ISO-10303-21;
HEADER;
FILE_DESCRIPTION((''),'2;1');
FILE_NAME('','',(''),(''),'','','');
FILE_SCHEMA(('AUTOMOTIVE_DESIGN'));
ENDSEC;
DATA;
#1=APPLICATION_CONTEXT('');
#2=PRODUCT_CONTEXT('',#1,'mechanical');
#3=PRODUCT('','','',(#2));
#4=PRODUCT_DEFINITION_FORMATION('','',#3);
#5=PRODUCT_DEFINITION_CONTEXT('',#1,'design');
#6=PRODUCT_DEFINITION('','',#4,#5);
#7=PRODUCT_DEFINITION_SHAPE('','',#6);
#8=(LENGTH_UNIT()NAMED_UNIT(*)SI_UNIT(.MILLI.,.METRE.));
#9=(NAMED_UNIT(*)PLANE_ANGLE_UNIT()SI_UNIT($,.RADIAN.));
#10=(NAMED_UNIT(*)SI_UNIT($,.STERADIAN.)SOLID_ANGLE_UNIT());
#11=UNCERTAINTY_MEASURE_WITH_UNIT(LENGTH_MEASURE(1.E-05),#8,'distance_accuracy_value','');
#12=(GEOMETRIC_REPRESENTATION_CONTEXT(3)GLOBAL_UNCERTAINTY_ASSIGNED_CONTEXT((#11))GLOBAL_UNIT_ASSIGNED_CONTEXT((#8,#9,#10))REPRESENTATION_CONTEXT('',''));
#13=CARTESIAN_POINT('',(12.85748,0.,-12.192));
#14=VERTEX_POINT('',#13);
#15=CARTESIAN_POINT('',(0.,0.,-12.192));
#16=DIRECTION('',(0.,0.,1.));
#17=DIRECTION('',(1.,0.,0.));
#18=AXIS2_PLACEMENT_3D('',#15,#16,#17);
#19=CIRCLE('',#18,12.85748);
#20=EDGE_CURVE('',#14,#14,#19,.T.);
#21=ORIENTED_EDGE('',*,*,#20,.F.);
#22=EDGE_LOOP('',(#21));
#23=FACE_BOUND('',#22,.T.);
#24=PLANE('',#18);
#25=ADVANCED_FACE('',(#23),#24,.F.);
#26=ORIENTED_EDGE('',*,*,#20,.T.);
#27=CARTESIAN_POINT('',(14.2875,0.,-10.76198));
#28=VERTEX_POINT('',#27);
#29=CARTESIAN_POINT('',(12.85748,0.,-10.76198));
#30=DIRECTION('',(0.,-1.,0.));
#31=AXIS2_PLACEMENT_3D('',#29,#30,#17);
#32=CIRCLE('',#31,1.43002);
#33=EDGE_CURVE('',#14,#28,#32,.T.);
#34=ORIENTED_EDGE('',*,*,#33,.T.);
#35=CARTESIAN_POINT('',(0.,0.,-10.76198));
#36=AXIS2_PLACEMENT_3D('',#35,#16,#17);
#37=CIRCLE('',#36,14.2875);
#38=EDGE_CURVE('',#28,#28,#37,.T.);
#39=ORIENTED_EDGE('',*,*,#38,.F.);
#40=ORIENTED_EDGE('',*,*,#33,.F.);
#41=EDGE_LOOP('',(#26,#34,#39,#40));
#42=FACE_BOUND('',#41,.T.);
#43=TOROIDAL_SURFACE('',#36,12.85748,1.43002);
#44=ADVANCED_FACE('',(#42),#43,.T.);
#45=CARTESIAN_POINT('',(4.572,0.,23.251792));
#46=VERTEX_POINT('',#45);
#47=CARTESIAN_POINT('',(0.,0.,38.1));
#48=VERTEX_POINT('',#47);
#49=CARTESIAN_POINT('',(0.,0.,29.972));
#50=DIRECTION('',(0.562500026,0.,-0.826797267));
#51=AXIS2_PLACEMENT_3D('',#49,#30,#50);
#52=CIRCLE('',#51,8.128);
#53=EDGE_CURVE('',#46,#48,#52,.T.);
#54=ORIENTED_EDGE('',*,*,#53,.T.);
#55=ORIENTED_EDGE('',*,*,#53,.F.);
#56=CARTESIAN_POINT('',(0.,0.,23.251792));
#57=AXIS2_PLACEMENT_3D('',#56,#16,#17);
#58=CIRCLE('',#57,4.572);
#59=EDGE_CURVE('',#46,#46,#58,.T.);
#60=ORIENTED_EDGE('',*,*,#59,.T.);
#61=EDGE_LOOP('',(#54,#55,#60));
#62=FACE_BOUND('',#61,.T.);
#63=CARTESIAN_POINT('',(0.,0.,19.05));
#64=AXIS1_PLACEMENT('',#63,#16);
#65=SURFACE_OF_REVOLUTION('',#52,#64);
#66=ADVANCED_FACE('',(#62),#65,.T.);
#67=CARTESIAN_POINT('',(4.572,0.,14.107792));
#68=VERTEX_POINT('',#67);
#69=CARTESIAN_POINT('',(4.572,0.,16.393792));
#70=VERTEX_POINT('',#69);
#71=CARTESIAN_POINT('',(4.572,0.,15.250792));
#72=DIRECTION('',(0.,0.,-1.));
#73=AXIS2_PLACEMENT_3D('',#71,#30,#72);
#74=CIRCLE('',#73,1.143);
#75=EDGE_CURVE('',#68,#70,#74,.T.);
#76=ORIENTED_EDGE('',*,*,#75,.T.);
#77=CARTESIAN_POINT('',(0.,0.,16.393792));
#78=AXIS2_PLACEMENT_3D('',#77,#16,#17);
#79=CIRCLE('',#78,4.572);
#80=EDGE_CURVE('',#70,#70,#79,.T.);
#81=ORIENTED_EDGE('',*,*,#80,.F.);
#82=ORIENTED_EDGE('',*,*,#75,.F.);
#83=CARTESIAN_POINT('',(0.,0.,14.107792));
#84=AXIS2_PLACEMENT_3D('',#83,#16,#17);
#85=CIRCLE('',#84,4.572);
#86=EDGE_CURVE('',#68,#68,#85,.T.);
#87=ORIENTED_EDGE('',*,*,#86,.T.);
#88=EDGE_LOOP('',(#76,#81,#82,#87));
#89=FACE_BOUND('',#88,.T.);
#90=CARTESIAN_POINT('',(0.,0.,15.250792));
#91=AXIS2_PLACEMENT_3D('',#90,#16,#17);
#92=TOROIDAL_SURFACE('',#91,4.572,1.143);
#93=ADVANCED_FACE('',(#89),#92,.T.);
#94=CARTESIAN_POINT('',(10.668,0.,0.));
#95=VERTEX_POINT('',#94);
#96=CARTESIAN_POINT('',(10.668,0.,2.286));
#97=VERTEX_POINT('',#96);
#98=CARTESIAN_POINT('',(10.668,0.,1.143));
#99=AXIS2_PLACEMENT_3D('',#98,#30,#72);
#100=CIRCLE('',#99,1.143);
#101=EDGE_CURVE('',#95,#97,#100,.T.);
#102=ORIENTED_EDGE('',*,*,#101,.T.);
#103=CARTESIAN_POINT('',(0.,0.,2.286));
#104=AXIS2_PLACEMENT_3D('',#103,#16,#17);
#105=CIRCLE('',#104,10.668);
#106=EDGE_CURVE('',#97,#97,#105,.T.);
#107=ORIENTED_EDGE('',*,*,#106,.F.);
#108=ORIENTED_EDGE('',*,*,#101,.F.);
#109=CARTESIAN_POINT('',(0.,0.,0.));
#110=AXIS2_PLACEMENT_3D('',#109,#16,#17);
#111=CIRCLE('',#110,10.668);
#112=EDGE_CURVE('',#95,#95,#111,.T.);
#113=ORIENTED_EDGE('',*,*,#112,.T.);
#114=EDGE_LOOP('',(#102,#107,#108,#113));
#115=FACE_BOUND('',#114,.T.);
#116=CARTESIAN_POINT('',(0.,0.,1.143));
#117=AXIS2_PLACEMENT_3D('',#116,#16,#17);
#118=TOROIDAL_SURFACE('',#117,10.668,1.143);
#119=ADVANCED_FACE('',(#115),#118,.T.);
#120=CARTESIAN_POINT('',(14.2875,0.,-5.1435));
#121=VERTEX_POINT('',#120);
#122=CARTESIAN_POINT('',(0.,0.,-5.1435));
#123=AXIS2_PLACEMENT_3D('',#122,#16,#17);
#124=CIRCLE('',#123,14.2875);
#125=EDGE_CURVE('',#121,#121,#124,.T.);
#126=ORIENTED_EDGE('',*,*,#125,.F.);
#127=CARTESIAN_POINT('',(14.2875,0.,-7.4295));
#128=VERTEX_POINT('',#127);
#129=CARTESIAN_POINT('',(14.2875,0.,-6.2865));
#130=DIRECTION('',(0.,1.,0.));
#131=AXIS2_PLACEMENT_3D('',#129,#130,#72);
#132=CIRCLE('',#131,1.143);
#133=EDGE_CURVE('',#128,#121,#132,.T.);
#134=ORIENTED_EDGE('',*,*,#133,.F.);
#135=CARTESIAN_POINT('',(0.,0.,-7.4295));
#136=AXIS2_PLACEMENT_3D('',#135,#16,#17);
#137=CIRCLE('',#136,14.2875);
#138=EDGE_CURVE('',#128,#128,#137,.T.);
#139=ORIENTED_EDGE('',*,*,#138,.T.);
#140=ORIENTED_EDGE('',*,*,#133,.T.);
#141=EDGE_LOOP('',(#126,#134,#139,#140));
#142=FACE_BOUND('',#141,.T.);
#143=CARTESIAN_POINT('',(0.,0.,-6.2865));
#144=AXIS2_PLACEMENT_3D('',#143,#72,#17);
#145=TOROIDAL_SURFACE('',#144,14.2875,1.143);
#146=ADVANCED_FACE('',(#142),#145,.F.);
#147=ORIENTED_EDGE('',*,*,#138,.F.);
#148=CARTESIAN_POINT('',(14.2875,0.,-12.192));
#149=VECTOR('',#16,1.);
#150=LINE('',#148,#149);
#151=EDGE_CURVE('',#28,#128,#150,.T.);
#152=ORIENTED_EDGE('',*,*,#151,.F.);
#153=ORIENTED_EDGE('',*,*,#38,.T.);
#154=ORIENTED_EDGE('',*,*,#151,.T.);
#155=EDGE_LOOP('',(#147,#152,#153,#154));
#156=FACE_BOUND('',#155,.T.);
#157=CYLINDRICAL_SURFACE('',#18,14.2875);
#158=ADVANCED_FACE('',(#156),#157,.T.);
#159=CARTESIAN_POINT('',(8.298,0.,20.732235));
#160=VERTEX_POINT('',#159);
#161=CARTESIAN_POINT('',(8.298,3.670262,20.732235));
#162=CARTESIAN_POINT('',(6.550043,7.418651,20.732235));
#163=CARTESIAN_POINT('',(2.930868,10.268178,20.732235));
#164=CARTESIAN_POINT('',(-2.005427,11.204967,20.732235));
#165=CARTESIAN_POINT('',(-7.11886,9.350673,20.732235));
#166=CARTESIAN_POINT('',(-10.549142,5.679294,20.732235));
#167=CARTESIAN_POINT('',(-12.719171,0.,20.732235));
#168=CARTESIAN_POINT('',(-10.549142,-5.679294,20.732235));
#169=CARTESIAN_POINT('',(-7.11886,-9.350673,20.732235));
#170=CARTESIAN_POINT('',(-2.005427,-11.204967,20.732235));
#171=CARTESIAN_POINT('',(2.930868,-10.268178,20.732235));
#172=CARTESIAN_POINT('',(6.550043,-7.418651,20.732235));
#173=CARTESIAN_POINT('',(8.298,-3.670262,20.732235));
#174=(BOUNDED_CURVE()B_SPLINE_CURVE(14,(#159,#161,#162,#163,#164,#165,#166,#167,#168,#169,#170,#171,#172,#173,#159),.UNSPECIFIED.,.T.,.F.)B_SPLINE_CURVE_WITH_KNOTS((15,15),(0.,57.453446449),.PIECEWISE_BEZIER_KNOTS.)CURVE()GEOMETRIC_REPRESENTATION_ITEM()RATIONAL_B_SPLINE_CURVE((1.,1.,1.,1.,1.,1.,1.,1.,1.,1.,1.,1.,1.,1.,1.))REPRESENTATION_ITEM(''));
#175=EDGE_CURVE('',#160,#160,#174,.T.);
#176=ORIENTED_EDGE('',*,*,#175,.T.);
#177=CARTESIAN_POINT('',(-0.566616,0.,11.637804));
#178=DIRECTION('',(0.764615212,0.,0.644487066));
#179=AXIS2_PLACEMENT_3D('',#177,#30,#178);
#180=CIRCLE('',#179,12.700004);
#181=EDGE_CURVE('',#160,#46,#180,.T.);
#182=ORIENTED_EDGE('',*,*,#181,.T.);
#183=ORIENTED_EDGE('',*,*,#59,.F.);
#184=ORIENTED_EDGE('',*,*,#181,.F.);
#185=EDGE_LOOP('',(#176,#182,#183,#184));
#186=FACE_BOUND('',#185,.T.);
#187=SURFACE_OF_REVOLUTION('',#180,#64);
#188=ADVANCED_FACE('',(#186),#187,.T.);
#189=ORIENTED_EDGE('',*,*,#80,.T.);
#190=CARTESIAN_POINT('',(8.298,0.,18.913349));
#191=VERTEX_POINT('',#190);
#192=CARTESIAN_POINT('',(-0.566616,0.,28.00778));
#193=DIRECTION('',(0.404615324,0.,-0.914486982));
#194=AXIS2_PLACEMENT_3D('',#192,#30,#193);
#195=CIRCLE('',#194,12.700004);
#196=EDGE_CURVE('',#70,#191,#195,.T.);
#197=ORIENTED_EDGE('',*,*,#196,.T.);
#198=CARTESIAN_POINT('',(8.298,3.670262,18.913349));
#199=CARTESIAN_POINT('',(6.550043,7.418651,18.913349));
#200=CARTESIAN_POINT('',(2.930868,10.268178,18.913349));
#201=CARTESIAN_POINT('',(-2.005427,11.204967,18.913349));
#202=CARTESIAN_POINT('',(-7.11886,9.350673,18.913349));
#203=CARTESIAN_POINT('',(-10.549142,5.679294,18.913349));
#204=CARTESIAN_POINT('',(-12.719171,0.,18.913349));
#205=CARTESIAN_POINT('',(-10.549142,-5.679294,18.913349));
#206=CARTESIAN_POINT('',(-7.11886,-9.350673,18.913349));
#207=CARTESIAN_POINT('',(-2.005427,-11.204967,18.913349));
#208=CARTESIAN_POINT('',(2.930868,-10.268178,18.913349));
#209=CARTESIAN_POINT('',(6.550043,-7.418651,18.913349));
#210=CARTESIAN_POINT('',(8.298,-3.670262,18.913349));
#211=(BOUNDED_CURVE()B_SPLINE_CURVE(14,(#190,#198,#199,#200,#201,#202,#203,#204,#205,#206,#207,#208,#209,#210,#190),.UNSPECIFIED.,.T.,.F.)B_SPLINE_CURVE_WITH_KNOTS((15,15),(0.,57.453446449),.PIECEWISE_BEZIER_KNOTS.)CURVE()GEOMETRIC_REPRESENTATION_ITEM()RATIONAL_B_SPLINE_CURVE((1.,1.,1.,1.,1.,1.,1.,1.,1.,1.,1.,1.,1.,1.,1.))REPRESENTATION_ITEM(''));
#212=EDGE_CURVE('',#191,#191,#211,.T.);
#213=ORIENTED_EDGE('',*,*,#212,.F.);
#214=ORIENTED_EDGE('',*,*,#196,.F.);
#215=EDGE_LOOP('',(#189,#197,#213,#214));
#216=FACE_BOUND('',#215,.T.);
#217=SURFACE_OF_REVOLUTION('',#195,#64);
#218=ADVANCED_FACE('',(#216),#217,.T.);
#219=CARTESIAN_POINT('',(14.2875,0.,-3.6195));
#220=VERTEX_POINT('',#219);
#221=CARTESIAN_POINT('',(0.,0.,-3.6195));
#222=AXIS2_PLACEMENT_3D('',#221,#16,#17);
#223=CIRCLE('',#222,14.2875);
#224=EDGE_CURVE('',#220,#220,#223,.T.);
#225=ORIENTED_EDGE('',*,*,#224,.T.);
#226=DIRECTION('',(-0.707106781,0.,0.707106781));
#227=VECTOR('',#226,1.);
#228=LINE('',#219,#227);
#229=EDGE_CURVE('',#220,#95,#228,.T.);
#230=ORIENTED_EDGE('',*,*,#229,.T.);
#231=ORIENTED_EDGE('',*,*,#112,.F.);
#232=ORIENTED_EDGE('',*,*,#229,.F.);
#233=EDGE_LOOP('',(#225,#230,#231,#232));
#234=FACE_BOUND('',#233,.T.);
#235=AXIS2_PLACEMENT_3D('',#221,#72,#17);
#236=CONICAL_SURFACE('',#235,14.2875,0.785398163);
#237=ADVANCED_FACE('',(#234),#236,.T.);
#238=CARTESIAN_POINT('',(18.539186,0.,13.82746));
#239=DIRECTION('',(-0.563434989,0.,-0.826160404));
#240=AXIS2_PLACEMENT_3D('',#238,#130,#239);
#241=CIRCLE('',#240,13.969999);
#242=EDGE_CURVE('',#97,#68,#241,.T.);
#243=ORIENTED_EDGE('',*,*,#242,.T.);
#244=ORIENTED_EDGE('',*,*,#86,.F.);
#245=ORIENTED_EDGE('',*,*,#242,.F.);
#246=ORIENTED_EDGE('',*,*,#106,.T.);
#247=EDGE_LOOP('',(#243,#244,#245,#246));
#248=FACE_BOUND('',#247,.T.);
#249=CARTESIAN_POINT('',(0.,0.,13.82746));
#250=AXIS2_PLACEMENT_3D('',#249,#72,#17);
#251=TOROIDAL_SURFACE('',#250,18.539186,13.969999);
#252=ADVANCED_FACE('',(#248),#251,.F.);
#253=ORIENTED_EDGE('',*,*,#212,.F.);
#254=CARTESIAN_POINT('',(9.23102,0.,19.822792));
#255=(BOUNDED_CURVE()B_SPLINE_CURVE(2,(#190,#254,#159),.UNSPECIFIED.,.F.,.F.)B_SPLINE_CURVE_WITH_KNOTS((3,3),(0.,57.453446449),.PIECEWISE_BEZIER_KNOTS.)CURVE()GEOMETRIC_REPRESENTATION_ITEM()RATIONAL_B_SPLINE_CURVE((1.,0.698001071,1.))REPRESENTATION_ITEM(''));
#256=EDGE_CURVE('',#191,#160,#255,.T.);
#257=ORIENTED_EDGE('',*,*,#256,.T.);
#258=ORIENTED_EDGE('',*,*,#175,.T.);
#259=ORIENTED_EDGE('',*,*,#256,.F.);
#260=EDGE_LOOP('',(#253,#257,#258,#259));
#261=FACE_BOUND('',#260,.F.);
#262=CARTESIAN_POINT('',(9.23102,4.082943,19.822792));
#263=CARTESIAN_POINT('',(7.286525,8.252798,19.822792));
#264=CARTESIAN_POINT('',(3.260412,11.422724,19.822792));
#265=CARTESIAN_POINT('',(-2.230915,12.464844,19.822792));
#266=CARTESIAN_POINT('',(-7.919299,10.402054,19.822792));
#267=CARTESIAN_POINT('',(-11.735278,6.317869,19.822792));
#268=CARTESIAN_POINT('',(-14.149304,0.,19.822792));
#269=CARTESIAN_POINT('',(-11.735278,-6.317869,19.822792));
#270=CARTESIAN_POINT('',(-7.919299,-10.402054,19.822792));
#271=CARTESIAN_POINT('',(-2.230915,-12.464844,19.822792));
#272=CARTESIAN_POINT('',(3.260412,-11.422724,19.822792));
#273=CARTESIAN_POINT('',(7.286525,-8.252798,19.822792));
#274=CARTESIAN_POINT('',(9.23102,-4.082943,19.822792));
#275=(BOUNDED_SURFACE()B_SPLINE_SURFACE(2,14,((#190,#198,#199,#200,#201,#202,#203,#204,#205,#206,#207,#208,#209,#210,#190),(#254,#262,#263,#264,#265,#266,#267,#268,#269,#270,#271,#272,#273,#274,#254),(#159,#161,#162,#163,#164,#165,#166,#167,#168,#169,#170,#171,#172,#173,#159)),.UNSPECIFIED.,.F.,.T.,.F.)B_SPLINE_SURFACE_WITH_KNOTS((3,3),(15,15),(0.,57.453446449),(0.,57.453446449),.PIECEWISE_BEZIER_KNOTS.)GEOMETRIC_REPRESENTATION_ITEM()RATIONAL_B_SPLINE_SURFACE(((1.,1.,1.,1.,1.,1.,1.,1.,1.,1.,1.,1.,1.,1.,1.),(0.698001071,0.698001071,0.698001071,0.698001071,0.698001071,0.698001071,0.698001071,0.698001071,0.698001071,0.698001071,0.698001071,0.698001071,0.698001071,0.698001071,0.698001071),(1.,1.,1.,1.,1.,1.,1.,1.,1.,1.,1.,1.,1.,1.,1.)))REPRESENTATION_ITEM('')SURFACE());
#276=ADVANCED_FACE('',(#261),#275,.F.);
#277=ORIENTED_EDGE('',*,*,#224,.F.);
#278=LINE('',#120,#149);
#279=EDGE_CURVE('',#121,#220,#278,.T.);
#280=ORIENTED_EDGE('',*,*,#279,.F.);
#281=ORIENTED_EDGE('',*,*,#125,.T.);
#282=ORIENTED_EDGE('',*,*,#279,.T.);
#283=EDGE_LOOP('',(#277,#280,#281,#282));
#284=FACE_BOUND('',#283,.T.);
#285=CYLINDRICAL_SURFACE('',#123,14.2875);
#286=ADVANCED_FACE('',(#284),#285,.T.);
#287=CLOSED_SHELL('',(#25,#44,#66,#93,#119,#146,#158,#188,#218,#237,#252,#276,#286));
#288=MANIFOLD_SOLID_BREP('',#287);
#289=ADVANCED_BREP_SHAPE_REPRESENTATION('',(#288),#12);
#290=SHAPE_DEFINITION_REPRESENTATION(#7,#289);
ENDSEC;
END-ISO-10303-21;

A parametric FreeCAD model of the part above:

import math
import FreeCAD as App
import Part
import Sketcher
from FreeCAD import Vector
Q = App.Units.Quantity


def edges_at(feature, points):
    """Names of the edges that pass closest to the given points."""
    edges = feature.Shape.Edges
    near = lambda p: min(range(len(edges)), key=lambda i: edges[i].distToShape(Part.Vertex(*p))[0])
    return sorted({f"Edge{near(p) + 1}" for p in points})

doc = App.newDocument("Part")
body = doc.addObject("PartDesign::Body", "Body")

# Sketch on XZ plane
sketch1 = doc.addObject("Sketcher::SketchObject", "Sketch")
body.addObject(sketch1)
sketch1.AttachmentSupport = (doc.XZ_Plane, [""])
sketch1.MapMode = "FlatFace"
sketch1.addGeometry([
    Part.LineSegment(Vector(10.7, 0, 0), Vector(0, 0, 0)),  # 0
    Part.LineSegment(Vector(0, 0, 0), Vector(0, -12.2, 0)),  # 1
    Part.LineSegment(Vector(0, -12.2, 0), Vector(14.3, -12.2, 0)),  # 2
    Part.LineSegment(Vector(14.3, -12.2, 0), Vector(14.3, -7.4, 0)),  # 3
    Part.ArcOfCircle(Part.Circle(Vector(14.3, -6.3, 0), Vector(0, 0, 1), 1.1), math.radians(90), math.radians(270)),  # 4
    Part.LineSegment(Vector(14.3, -5.1, 0), Vector(14.3, -3.6, 0)),  # 5
    Part.LineSegment(Vector(14.3, -3.6, 0), Vector(10.7, 0, 0)),  # 6
], False)
sketch1.addConstraint([
    Sketcher.Constraint("Coincident", 0, 2, 1, 1),
    Sketcher.Constraint("Coincident", 1, 2, 2, 1),
    Sketcher.Constraint("Coincident", 2, 2, 3, 1),
    Sketcher.Constraint("Coincident", 3, 2, 4, 2),
    Sketcher.Constraint("Coincident", 4, 1, 5, 1),
    Sketcher.Constraint("Coincident", 5, 2, 6, 1),
    Sketcher.Constraint("Coincident", 6, 2, 0, 1),
    Sketcher.Constraint("Horizontal", 0),
    Sketcher.Constraint("Vertical", 1),
    Sketcher.Constraint("Horizontal", 2),
    Sketcher.Constraint("Vertical", 3),
    Sketcher.Constraint("Vertical", 5),
    Sketcher.Constraint("Coincident", 0, 2, -1, 1),
    Sketcher.Constraint("Vertical", 4, 3, 2, 2),
    Sketcher.Constraint("Vertical", 3, 2, 4, 1),
    Sketcher.Constraint("Angle", 6, Q("135 deg")),
    Sketcher.Constraint("Radius", 4, Q("0.045 in")),
    Sketcher.Constraint("DistanceX", 0, 2, 0, 1, Q("0.42 in")),
    Sketcher.Constraint("DistanceY", 1, 2, 1, 1, Q("0.48 in")),
    Sketcher.Constraint("DistanceY", 5, 1, 5, 2, Q("0.06 in")),
    Sketcher.Constraint("DistanceX", 2, 1, 2, 2, Q("0.5625 in")),
])
revolution = doc.addObject("PartDesign::Revolution", "Revolution")
body.addObject(revolution)
revolution.Profile = sketch1
revolution.ReferenceAxis = (sketch1, ["V_Axis"])
revolution.Angle = 360
doc.recompute()

fillet = doc.addObject("PartDesign::Fillet", "Fillet")
body.addObject(fillet)
fillet.Base = (revolution, edges_at(revolution, [(-14.287, 0, -12.192)]))
fillet.Radius = Q("0.0563 in")

# Sketch on XZ plane
sketch2 = doc.addObject("Sketcher::SketchObject", "Sketch001")
body.addObject(sketch2)
sketch2.AttachmentSupport = (doc.XZ_Plane, [""])
sketch2.MapMode = "FlatFace"
sketch2.addGeometry([
    Part.LineSegment(Vector(0, 0, 0), Vector(10.7, 0, 0)),  # 0
    Part.ArcOfCircle(Part.Circle(Vector(10.7, 1.1, 0), Vector(0, 0, 1), 1.1), math.radians(-90), math.radians(90)),  # 1
    Part.ArcOfCircle(Part.Circle(Vector(18.5, 13.8, 0), Vector(0, 0, 1), 14), math.radians(179), math.radians(236)),  # 2
    Part.ArcOfCircle(Part.Circle(Vector(4.6, 15.3, 0), Vector(0, 0, 1), 1.1), math.radians(-90), math.radians(90)),  # 3
    Part.ArcOfCircle(Part.Circle(Vector(-0.6, 28, 0), Vector(0, 0, 1), 12.7), math.radians(-66), math.radians(-40)),  # 4
    Part.ArcOfCircle(Part.Circle(Vector(-0.6, 11.6, 0), Vector(0, 0, 1), 12.7), math.radians(40), math.radians(66)),  # 5
    Part.ArcOfCircle(Part.Circle(Vector(0, 30, 0), Vector(0, 0, 1), 8.1), math.radians(-56), math.radians(90)),  # 6
    Part.LineSegment(Vector(0, 38.1, 0), Vector(0, 0, 0)),  # 7
], False)
sketch2.addConstraint([
    Sketcher.Constraint("Tangent", 0, 2, 1, 1),
    Sketcher.Constraint("Coincident", 1, 2, 2, 2),
    Sketcher.Constraint("Coincident", 2, 1, 3, 1),
    Sketcher.Constraint("Coincident", 3, 2, 4, 1),
    Sketcher.Constraint("Coincident", 4, 2, 5, 1),
    Sketcher.Constraint("Coincident", 5, 2, 6, 1),
    Sketcher.Constraint("Coincident", 6, 2, 7, 1),
    Sketcher.Constraint("Coincident", 7, 2, 0, 1),
    Sketcher.Constraint("Horizontal", 0),
    Sketcher.Constraint("Vertical", 7),
    Sketcher.Constraint("Coincident", 7, 2, -1, 1),
    Sketcher.Constraint("Equal", 1, 3),
    Sketcher.Constraint("Equal", 4, 5),
    Sketcher.Constraint("PointOnObject", 6, 3, -2),
    Sketcher.Constraint("Vertical", 4, 3, 5, 3),
    Sketcher.Constraint("Vertical", 0, 2, 1, 2),
    Sketcher.Constraint("Vertical", 3, 3, 2, 1),
    Sketcher.Constraint("Vertical", 2, 1, 3, 2),
    Sketcher.Constraint("Vertical", 3, 2, 5, 2),
    Sketcher.Constraint("Radius", 4, Q("0.5000002 in")),
    Sketcher.Constraint("Radius", 2, Q("0.55 in")),
    Sketcher.Constraint("Radius", 6, Q("0.32 in")),
    Sketcher.Constraint("DistanceY", 7, 2, 7, 1, Q("1.5 in")),
    Sketcher.Constraint("Radius", 1, Q("0.045 in")),
    Sketcher.Constraint("DistanceX", 0, 1, 0, 2, Q("0.42 in")),
    Sketcher.Constraint("DistanceX", -1, 1, 3, 3, Q("0.18 in")),
    Sketcher.Constraint("DistanceX", -1, 1, 4, 2, Q("0.36 in")),
    Sketcher.Constraint("DistanceY", 3, 3, 4, 2, Q("0.18 in")),
])
revolution2 = doc.addObject("PartDesign::Revolution", "Revolution001")
body.addObject(revolution2)
revolution2.Profile = sketch2
revolution2.ReferenceAxis = (sketch2, ["V_Axis"])
revolution2.Angle = 360
doc.recompute()

fillet2 = doc.addObject("PartDesign::Fillet", "Fillet001")
body.addObject(fillet2)
fillet2.Base = (revolution2, edges_at(revolution2, [(-9.144, 0, 19.823)]))
fillet2.Radius = Q("0.05 in")

doc.recompute()
